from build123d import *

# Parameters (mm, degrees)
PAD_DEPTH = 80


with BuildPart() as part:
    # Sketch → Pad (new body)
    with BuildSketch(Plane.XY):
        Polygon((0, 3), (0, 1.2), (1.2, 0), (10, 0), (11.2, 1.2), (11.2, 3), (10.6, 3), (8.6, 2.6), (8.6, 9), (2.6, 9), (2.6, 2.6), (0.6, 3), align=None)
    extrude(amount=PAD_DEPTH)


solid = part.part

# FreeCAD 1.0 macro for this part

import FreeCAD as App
import Part
import Sketcher

V = App.Vector

doc = App.newDocument("Part")
body = doc.addObject("PartDesign::Body", "Body")

sketch1 = body.newObject("Sketcher::SketchObject", "Sketch")
sketch1.AttachmentSupport = (doc.getObject("XY_Plane"), [""])
sketch1.MapMode = "FlatFace"
sketch1.addGeometry([
    Part.LineSegment(V(0, 3, 0), V(0, 1.2, 0)),
    Part.LineSegment(V(0, 1.2, 0), V(1.2, 0, 0)),
    Part.LineSegment(V(1.2, 0, 0), V(10, 0, 0)),
    Part.LineSegment(V(10, 0, 0), V(11.2, 1.2, 0)),
    Part.LineSegment(V(11.2, 1.2, 0), V(11.2, 3, 0)),
    Part.LineSegment(V(11.2, 3, 0), V(10.6, 3, 0)),
    Part.LineSegment(V(10.6, 3, 0), V(8.6, 2.6, 0)),
    Part.LineSegment(V(8.6, 2.6, 0), V(8.6, 9, 0)),
    Part.LineSegment(V(8.6, 9, 0), V(2.6, 9, 0)),
    Part.LineSegment(V(2.6, 9, 0), V(2.6, 2.6, 0)),
    Part.LineSegment(V(2.6, 2.6, 0), V(0.6, 3, 0)),
    Part.LineSegment(V(0.6, 3, 0), V(0, 3, 0)),
], False)
sketch1.addConstraint([
    Sketcher.Constraint("Coincident", 0, 2, 1, 1),
    Sketcher.Constraint("Coincident", 1, 2, 2, 1),
    Sketcher.Constraint("Coincident", 2, 2, 3, 1),
    Sketcher.Constraint("Coincident", 3, 2, 4, 1),
    Sketcher.Constraint("Coincident", 4, 2, 5, 1),
    Sketcher.Constraint("Coincident", 5, 2, 6, 1),
    Sketcher.Constraint("Coincident", 6, 2, 7, 1),
    Sketcher.Constraint("Coincident", 7, 2, 8, 1),
    Sketcher.Constraint("Coincident", 8, 2, 9, 1),
    Sketcher.Constraint("Coincident", 9, 2, 10, 1),
    Sketcher.Constraint("Coincident", 10, 2, 11, 1),
    Sketcher.Constraint("Coincident", 11, 2, 0, 1),
    Sketcher.Constraint("Vertical", 0),
    Sketcher.Constraint("Horizontal", 2),
    Sketcher.Constraint("Vertical", 4),
    Sketcher.Constraint("Horizontal", 5),
    Sketcher.Constraint("Vertical", 7),
    Sketcher.Constraint("Horizontal", 8),
    Sketcher.Constraint("Vertical", 9),
    Sketcher.Constraint("Horizontal", 11),
    Sketcher.Constraint("PointOnObject", 0, 2, -2),
    Sketcher.Constraint("PointOnObject", 1, 2, -1),
    Sketcher.Constraint("Perpendicular", 1, 3),
    Sketcher.Constraint("Horizontal", 0, 2, 3, 2),
    Sketcher.Constraint("Horizontal", 6, 2, 9, 2),
    Sketcher.Constraint("Horizontal", 5, 2, 10, 2),
    Sketcher.Constraint("Equal", 5, 11),
    Sketcher.Constraint("Equal", 1, 3),
    Sketcher.Constraint("Equal", 6, 10),
    Sketcher.Constraint("DistanceX", 8, 2, 8, 1, 6.0),
    Sketcher.Constraint("DistanceX", 2, 1, 2, 2, 8.8),
    Sketcher.Constraint("DistanceX", 5, 2, 5, 1, 0.6),
    Sketcher.Constraint("DistanceY", 0, 2, 0, 1, 1.8),
    Sketcher.Constraint("DistanceY", 7, 1, 7, 2, 6.4),
    Sketcher.Constraint("DistanceX", -1, 1, 2, 2, 10.0),
    Sketcher.Constraint("DistanceY", -1, 1, 7, 2, 9.0),
])
pad1 = body.newObject("PartDesign::Pad", "Pad")
pad1.Profile = sketch1
pad1.Length = 80

doc.recompute()
